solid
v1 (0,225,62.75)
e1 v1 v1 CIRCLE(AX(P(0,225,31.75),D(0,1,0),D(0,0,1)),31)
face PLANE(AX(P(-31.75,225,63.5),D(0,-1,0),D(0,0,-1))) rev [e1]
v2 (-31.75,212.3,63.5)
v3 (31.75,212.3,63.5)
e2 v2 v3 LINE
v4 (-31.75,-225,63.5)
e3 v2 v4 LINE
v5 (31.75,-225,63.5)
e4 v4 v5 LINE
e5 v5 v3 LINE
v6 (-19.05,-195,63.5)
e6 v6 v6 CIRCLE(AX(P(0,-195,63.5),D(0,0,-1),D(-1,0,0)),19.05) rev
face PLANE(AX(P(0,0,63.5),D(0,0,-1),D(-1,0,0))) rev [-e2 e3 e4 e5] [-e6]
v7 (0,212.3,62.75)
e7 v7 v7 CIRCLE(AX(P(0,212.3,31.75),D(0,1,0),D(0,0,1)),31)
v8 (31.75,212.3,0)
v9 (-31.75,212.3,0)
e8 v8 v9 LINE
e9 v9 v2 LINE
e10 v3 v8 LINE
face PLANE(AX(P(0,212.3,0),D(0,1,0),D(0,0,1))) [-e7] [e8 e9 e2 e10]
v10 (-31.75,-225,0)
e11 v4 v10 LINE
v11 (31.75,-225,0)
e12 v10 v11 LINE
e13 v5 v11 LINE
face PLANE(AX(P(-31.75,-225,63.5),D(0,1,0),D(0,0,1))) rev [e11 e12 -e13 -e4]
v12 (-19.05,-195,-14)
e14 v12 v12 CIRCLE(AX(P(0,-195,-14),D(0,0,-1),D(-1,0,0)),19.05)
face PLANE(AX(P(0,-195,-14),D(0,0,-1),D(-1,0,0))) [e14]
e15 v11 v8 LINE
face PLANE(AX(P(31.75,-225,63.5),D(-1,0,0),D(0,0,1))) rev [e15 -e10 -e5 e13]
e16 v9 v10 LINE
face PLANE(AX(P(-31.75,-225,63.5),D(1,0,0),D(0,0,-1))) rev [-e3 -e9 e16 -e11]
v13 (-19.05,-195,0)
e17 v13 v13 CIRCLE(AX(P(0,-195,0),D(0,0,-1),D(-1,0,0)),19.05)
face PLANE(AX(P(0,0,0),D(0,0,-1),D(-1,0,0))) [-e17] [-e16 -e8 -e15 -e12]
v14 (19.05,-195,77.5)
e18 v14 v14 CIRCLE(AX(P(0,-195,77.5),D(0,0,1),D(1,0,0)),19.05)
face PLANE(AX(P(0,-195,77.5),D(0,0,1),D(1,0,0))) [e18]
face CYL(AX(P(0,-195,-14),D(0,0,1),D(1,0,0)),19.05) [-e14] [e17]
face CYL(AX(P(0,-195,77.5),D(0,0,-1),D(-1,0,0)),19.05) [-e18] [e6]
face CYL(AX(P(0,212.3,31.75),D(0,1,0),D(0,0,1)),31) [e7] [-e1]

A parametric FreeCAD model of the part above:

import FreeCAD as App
import Part
import Sketcher
from FreeCAD import Vector


def add_polygon(sketch, points):
    """Adds a closed chain of lines whose ends are joined by coincident constraints."""
    first, n = sketch.GeometryCount, len(points)
    for a, b in zip(points, points[1:] + points[:1]):
        sketch.addGeometry(Part.LineSegment(App.Vector(*a, 0), App.Vector(*b, 0)), False)
    for i in range(n):
        sketch.addConstraint(Sketcher.Constraint("Coincident", first + i, 2, first + (i + 1) % n, 1))

doc = App.newDocument("Part")
body = doc.addObject("PartDesign::Body", "Body")

sketch1 = body.newObject("Sketcher::SketchObject", "Sketch")
sketch1.AttachmentSupport = (doc.getObject("XY_Plane"), [""])
sketch1.MapMode = "FlatFace"
add_polygon(sketch1, [(-32, 225), (-32, -225), (32, -225), (32, 225)])
sketch1.addConstraint([
    Sketcher.Constraint("Vertical", 0),
    Sketcher.Constraint("Horizontal", 1),
    Sketcher.Constraint("Vertical", 2),
    Sketcher.Constraint("Horizontal", 3),
    Sketcher.Constraint("Symmetric", 0, 2, 2, 2, -1, 1),
    Sketcher.Constraint("DistanceY", 0, 2, 0, 1, 450.0),
    Sketcher.Constraint("DistanceX", 1, 1, 1, 2, 63.5),
])
pad1 = body.newObject("PartDesign::Pad", "Pad")
pad1.Profile = sketch1
pad1.Length = 63.5

sketch2 = body.newObject("Sketcher::SketchObject", "Sketch001")
sketch2.AttachmentSupport = (doc.getObject("XY_Plane"), [""])
sketch2.MapMode = "FlatFace"
sketch2.AttachmentOffset = App.Placement(Vector(0, 0, 63.5), App.Rotation())
sketch2.addGeometry(Part.Circle(Vector(0, -195, 0), Vector(0, 0, 1), 19), False)
sketch2.addConstraint([
    Sketcher.Constraint("PointOnObject", 0, 3, -2),
    Sketcher.Constraint("Diameter", 0, 38.1),
    Sketcher.Constraint("DistanceY", 0, 3, -1, 1, 195.0),
])
pad2 = body.newObject("PartDesign::Pad", "Pad001")
pad2.Profile = sketch2
pad2.Length = 14

sketch3 = body.newObject("Sketcher::SketchObject", "Sketch002")
sketch3.AttachmentSupport = (doc.getObject("XY_Plane"), [""])
sketch3.MapMode = "FlatFace"
sketch3.AttachmentOffset = App.Placement(Vector(0, 0, -14), App.Rotation())
sketch3.addGeometry(Part.Circle(Vector(0, -195, 0), Vector(0, 0, 1), 19), False)
sketch3.addConstraint([
    Sketcher.Constraint("PointOnObject", 0, 3, -2),
    Sketcher.Constraint("Diameter", 0, 38.1),
    Sketcher.Constraint("DistanceY", 0, 3, -1, 1, 195.0),
])
pad3 = body.newObject("PartDesign::Pad", "Pad002")
pad3.Profile = sketch3
pad3.Length = 14

sketch4 = body.newObject("Sketcher::SketchObject", "Sketch003")
sketch4.AttachmentSupport = (doc.getObject("XZ_Plane"), [""])
sketch4.MapMode = "FlatFace"
sketch4.AttachmentOffset = App.Placement(Vector(0, 0, -225), App.Rotation())
add_polygon(sketch4, [(-32, 0), (-32, 64), (32, 64), (32, 0)])
sketch4.addGeometry(Part.Circle(Vector(0, 32, 0), Vector(0, 0, 1), 31), False)
sketch4.addConstraint([
    Sketcher.Constraint("Vertical", 0),
    Sketcher.Constraint("Horizontal", 1),
    Sketcher.Constraint("Vertical", 2),
    Sketcher.Constraint("Horizontal", 3),
    Sketcher.Constraint("Symmetric", 2, 2, 3, 2, -1, 1),
    Sketcher.Constraint("PointOnObject", 4, 3, -2),
    Sketcher.Constraint("Equal", 3, 0),
    Sketcher.Constraint("Diameter", 4, 62.0),
    Sketcher.Constraint("DistanceX", 1, 1, 1, 2, 63.5),
    Sketcher.Constraint("DistanceY", -1, 1, 4, 3, 31.75),
])
pocket1 = body.newObject("PartDesign::Pocket", "Pocket")
pocket1.Profile = sketch4
pocket1.Length = 12.7
pocket1.Reversed = True

doc.recompute()
